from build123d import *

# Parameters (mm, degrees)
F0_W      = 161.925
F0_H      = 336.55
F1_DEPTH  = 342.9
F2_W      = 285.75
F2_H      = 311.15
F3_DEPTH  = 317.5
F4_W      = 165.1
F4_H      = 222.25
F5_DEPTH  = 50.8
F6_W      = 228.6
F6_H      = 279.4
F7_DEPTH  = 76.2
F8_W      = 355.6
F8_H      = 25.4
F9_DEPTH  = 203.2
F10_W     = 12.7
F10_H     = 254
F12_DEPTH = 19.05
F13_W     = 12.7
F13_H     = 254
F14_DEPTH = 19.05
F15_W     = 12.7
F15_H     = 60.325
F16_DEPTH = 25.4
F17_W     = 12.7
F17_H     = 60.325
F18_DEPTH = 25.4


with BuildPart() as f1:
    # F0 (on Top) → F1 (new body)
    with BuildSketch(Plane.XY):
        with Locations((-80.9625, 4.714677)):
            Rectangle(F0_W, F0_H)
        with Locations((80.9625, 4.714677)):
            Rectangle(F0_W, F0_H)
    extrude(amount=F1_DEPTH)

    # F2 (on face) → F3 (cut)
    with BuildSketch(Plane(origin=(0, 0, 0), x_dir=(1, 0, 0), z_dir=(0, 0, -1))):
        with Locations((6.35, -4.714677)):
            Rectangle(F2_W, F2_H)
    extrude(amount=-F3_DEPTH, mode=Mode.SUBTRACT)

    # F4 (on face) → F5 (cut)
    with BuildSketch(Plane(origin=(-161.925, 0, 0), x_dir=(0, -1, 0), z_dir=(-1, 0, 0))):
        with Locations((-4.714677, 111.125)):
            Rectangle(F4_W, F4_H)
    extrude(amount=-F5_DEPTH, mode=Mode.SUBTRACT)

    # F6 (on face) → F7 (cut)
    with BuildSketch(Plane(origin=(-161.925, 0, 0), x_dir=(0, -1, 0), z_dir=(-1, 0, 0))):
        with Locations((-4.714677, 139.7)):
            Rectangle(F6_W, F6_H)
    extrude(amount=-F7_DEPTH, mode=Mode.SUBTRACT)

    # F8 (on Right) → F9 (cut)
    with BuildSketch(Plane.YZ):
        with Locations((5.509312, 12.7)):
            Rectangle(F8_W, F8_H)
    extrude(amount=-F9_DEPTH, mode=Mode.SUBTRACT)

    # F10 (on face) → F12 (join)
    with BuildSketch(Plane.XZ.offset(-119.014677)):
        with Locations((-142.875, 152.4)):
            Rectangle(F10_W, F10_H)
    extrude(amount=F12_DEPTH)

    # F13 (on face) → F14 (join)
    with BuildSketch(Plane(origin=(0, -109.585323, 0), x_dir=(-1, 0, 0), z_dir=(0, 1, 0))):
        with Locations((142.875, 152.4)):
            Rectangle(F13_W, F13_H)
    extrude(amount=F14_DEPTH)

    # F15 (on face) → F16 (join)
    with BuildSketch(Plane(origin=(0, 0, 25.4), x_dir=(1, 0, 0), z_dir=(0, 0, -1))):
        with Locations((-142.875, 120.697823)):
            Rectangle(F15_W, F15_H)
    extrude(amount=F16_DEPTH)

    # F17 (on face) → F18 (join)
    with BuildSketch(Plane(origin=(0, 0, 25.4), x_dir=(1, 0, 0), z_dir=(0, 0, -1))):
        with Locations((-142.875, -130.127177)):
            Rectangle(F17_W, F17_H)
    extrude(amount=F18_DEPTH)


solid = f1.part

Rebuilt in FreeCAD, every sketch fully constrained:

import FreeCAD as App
import Part
import Sketcher

V = App.Vector
Q = App.Units.Quantity

doc = App.newDocument("Part")
body = doc.addObject("PartDesign::Body", "Body")

sketch1 = body.newObject("Sketcher::SketchObject", "Sketch")
sketch1.AttachmentSupport = (doc.getObject("XY_Plane"), [""])
sketch1.MapMode = "FlatFace"
sketch1.addGeometry(Part.LineSegment(V(-162, 173, 0), V(-162, -164, 0)), False)
sketch1.addGeometry(Part.LineSegment(V(-162, -164, 0), V(162, -164, 0)), False)
sketch1.addGeometry(Part.LineSegment(V(162, -164, 0), V(162, 173, 0)), False)
sketch1.addGeometry(Part.LineSegment(V(162, 173, 0), V(-162, 173, 0)), False)
sketch1.addConstraint(Sketcher.Constraint("Coincident", 0, 2, 1, 1))
sketch1.addConstraint(Sketcher.Constraint("Coincident", 1, 2, 2, 1))
sketch1.addConstraint(Sketcher.Constraint("Coincident", 2, 2, 3, 1))
sketch1.addConstraint(Sketcher.Constraint("Coincident", 3, 2, 0, 1))
sketch1.addConstraint(Sketcher.Constraint("Vertical", 0))
sketch1.addConstraint(Sketcher.Constraint("Horizontal", 1))
sketch1.addConstraint(Sketcher.Constraint("Vertical", 2))
sketch1.addConstraint(Sketcher.Constraint("Horizontal", 3))
sketch1.addConstraint(Sketcher.Constraint("DistanceX", 1, 1, 1, 2, Q("12.75 in")))
sketch1.addConstraint(Sketcher.Constraint("DistanceY", 0, 2, 0, 1, Q("13.25 in")))
sketch1.addConstraint(Sketcher.Constraint("DistanceX", 0, 2, -1, 1, Q("6.375 in")))
sketch1.addConstraint(Sketcher.Constraint("DistanceY", 0, 2, -1, 1, Q("163.560323 mm")))
pad1 = body.newObject("PartDesign::Pad", "Pad")
pad1.Profile = sketch1
pad1.Length = Q("13.5 in")

sketch2 = body.newObject("Sketcher::SketchObject", "Sketch001")
sketch2.AttachmentSupport = (doc.getObject("XY_Plane"), [""])
sketch2.MapMode = "FlatFace"
sketch2.addGeometry(Part.LineSegment(V(-137, -151, 0), V(-137, 160, 0)), False)
sketch2.addGeometry(Part.LineSegment(V(-137, 160, 0), V(149, 160, 0)), False)
sketch2.addGeometry(Part.LineSegment(V(149, 160, 0), V(149, -151, 0)), False)
sketch2.addGeometry(Part.LineSegment(V(149, -151, 0), V(-137, -151, 0)), False)
sketch2.addConstraint(Sketcher.Constraint("Coincident", 0, 2, 1, 1))
sketch2.addConstraint(Sketcher.Constraint("Coincident", 1, 2, 2, 1))
sketch2.addConstraint(Sketcher.Constraint("Coincident", 2, 2, 3, 1))
sketch2.addConstraint(Sketcher.Constraint("Coincident", 3, 2, 0, 1))
sketch2.addConstraint(Sketcher.Constraint("Vertical", 0))
sketch2.addConstraint(Sketcher.Constraint("Horizontal", 1))
sketch2.addConstraint(Sketcher.Constraint("Vertical", 2))
sketch2.addConstraint(Sketcher.Constraint("Horizontal", 3))
sketch2.addConstraint(Sketcher.Constraint("DistanceX", 1, 1, 1, 2, Q("11.25 in")))
sketch2.addConstraint(Sketcher.Constraint("DistanceY", 0, 1, 0, 2, Q("12.25 in")))
sketch2.addConstraint(Sketcher.Constraint("DistanceX", 0, 2, -1, 1, Q("5.375 in")))
sketch2.addConstraint(Sketcher.Constraint("DistanceY", -1, 1, 0, 2, Q("160.289677 mm")))
pocket1 = body.newObject("PartDesign::Pocket", "Pocket")
pocket1.Profile = sketch2
pocket1.Length = Q("12.5 in")
pocket1.Reversed = True

sketch3 = body.newObject("Sketcher::SketchObject", "Sketch002")
sketch3.AttachmentSupport = (doc.getObject("YZ_Plane"), [""])
sketch3.MapMode = "FlatFace"
sketch3.AttachmentOffset = App.Placement(V(0, 0, -6.375 * 25.4), App.Rotation())
sketch3.addGeometry(Part.LineSegment(V(87, 222, 0), V(87, 0, 0)), False)
sketch3.addGeometry(Part.LineSegment(V(87, 0, 0), V(-78, 0, 0)), False)
sketch3.addGeometry(Part.LineSegment(V(-78, 0, 0), V(-78, 222, 0)), False)
sketch3.addGeometry(Part.LineSegment(V(-78, 222, 0), V(87, 222, 0)), False)
sketch3.addConstraint(Sketcher.Constraint("Coincident", 0, 2, 1, 1))
sketch3.addConstraint(Sketcher.Constraint("Coincident", 1, 2, 2, 1))
sketch3.addConstraint(Sketcher.Constraint("Coincident", 2, 2, 3, 1))
sketch3.addConstraint(Sketcher.Constraint("Coincident", 3, 2, 0, 1))
sketch3.addConstraint(Sketcher.Constraint("Vertical", 0))
sketch3.addConstraint(Sketcher.Constraint("Horizontal", 1))
sketch3.addConstraint(Sketcher.Constraint("Vertical", 2))
sketch3.addConstraint(Sketcher.Constraint("Horizontal", 3))
sketch3.addConstraint(Sketcher.Constraint("PointOnObject", 0, 2, -1))
sketch3.addConstraint(Sketcher.Constraint("DistanceX", 1, 2, 1, 1, Q("6.5 in")))
sketch3.addConstraint(Sketcher.Constraint("DistanceY", 0, 2, 0, 1, Q("8.75 in")))
sketch3.addConstraint(Sketcher.Constraint("DistanceX", -1, 1, 0, 2, Q("87.264677 mm")))
pocket2 = body.newObject("PartDesign::Pocket", "Pocket001")
pocket2.Profile = sketch3
pocket2.Length = Q("2 in")
pocket2.Reversed = True

sketch4 = body.newObject("Sketcher::SketchObject", "Sketch003")
sketch4.AttachmentSupport = (doc.getObject("YZ_Plane"), [""])
sketch4.MapMode = "FlatFace"
sketch4.AttachmentOffset = App.Placement(V(0, 0, -6.375 * 25.4), App.Rotation())
sketch4.addGeometry(Part.LineSegment(V(119, 279, 0), V(119, 0, 0)), False)
sketch4.addGeometry(Part.LineSegment(V(119, 0, 0), V(-110, 0, 0)), False)
sketch4.addGeometry(Part.LineSegment(V(-110, 0, 0), V(-110, 279, 0)), False)
sketch4.addGeometry(Part.LineSegment(V(-110, 279, 0), V(119, 279, 0)), False)
sketch4.addConstraint(Sketcher.Constraint("Coincident", 0, 2, 1, 1))
sketch4.addConstraint(Sketcher.Constraint("Coincident", 1, 2, 2, 1))
sketch4.addConstraint(Sketcher.Constraint("Coincident", 2, 2, 3, 1))
sketch4.addConstraint(Sketcher.Constraint("Coincident", 3, 2, 0, 1))
sketch4.addConstraint(Sketcher.Constraint("Vertical", 0))
sketch4.addConstraint(Sketcher.Constraint("Horizontal", 1))
sketch4.addConstraint(Sketcher.Constraint("Vertical", 2))
sketch4.addConstraint(Sketcher.Constraint("Horizontal", 3))
sketch4.addConstraint(Sketcher.Constraint("PointOnObject", 0, 2, -1))
sketch4.addConstraint(Sketcher.Constraint("DistanceX", 1, 2, 1, 1, Q("9 in")))
sketch4.addConstraint(Sketcher.Constraint("DistanceY", 0, 2, 0, 1, Q("11 in")))
sketch4.addConstraint(Sketcher.Constraint("DistanceX", -1, 1, 0, 2, Q("119.014677 mm")))
pocket3 = body.newObject("PartDesign::Pocket", "Pocket002")
pocket3.Profile = sketch4
pocket3.Length = Q("3 in")
pocket3.Reversed = True

sketch5 = body.newObject("Sketcher::SketchObject", "Sketch004")
sketch5.AttachmentSupport = (doc.getObject("YZ_Plane"), [""])
sketch5.MapMode = "FlatFace"
sketch5.addGeometry(Part.LineSegment(V(-172, 25, 0), V(-172, 0, 0)), False)
sketch5.addGeometry(Part.LineSegment(V(-172, 0, 0), V(183, 0, 0)), False)
sketch5.addGeometry(Part.LineSegment(V(183, 0, 0), V(183, 25, 0)), False)
sketch5.addGeometry(Part.LineSegment(V(183, 25, 0), V(-172, 25, 0)), False)
sketch5.addConstraint(Sketcher.Constraint("Coincident", 0, 2, 1, 1))
sketch5.addConstraint(Sketcher.Constraint("Coincident", 1, 2, 2, 1))
sketch5.addConstraint(Sketcher.Constraint("Coincident", 2, 2, 3, 1))
sketch5.addConstraint(Sketcher.Constraint("Coincident", 3, 2, 0, 1))
sketch5.addConstraint(Sketcher.Constraint("Vertical", 0))
sketch5.addConstraint(Sketcher.Constraint("Horizontal", 1))
sketch5.addConstraint(Sketcher.Constraint("Vertical", 2))
sketch5.addConstraint(Sketcher.Constraint("Horizontal", 3))
sketch5.addConstraint(Sketcher.Constraint("PointOnObject", 0, 2, -1))
sketch5.addConstraint(Sketcher.Constraint("DistanceX", 1, 1, 1, 2, Q("14 in")))
sketch5.addConstraint(Sketcher.Constraint("DistanceY", 0, 2, 0, 1, Q("1 in")))
sketch5.addConstraint(Sketcher.Constraint("DistanceX", -1, 1, 1, 2, Q("183.309312 mm")))
pocket4 = body.newObject("PartDesign::Pocket", "Pocket003")
pocket4.Profile = sketch5
pocket4.Length = Q("8 in")

sketch6 = body.newObject("Sketcher::SketchObject", "Sketch005")
sketch6.AttachmentSupport = (doc.getObject("XZ_Plane"), [""])
sketch6.MapMode = "FlatFace"
sketch6.AttachmentOffset = App.Placement(V(0, 0, -119.014677), App.Rotation())
sketch6.addGeometry(Part.LineSegment(V(-149, 279, 0), V(-149, 25, 0)), False)
sketch6.addGeometry(Part.LineSegment(V(-149, 25, 0), V(-137, 25, 0)), False)
sketch6.addGeometry(Part.LineSegment(V(-137, 25, 0), V(-137, 279, 0)), False)
sketch6.addGeometry(Part.LineSegment(V(-137, 279, 0), V(-149, 279, 0)), False)
sketch6.addConstraint(Sketcher.Constraint("Coincident", 0, 2, 1, 1))
sketch6.addConstraint(Sketcher.Constraint("Coincident", 1, 2, 2, 1))
sketch6.addConstraint(Sketcher.Constraint("Coincident", 2, 2, 3, 1))
sketch6.addConstraint(Sketcher.Constraint("Coincident", 3, 2, 0, 1))
sketch6.addConstraint(Sketcher.Constraint("Vertical", 0))
sketch6.addConstraint(Sketcher.Constraint("Horizontal", 1))
sketch6.addConstraint(Sketcher.Constraint("Vertical", 2))
sketch6.addConstraint(Sketcher.Constraint("Horizontal", 3))
sketch6.addConstraint(Sketcher.Constraint("DistanceY", 0, 2, 0, 1, Q("10 in")))
sketch6.addConstraint(Sketcher.Constraint("DistanceX", 1, 1, 1, 2, Q("0.5 in")))
sketch6.addConstraint(Sketcher.Constraint("DistanceY", -1, 1, 0, 2, Q("1 in")))
sketch6.addConstraint(Sketcher.Constraint("DistanceX", 0, 2, -1, 1, Q("5.875 in")))
pad2 = body.newObject("PartDesign::Pad", "Pad001")
pad2.Profile = sketch6
pad2.Length = Q("0.75 in")

sketch7 = body.newObject("Sketcher::SketchObject", "Sketch006")
sketch7.AttachmentSupport = (doc.getObject("XZ_Plane"), [""])
sketch7.MapMode = "FlatFace"
sketch7.AttachmentOffset = App.Placement(V(0, 0, 109.585323), App.Rotation())
sketch7.addGeometry(Part.LineSegment(V(-137, 279, 0), V(-137, 25, 0)), False)
sketch7.addGeometry(Part.LineSegment(V(-137, 25, 0), V(-149, 25, 0)), False)
sketch7.addGeometry(Part.LineSegment(V(-149, 25, 0), V(-149, 279, 0)), False)
sketch7.addGeometry(Part.LineSegment(V(-149, 279, 0), V(-137, 279, 0)), False)
sketch7.addConstraint(Sketcher.Constraint("Coincident", 0, 2, 1, 1))
sketch7.addConstraint(Sketcher.Constraint("Coincident", 1, 2, 2, 1))
sketch7.addConstraint(Sketcher.Constraint("Coincident", 2, 2, 3, 1))
sketch7.addConstraint(Sketcher.Constraint("Coincident", 3, 2, 0, 1))
sketch7.addConstraint(Sketcher.Constraint("Vertical", 0))
sketch7.addConstraint(Sketcher.Constraint("Horizontal", 1))
sketch7.addConstraint(Sketcher.Constraint("Vertical", 2))
sketch7.addConstraint(Sketcher.Constraint("Horizontal", 3))
sketch7.addConstraint(Sketcher.Constraint("DistanceY", 0, 2, 0, 1, Q("10 in")))
sketch7.addConstraint(Sketcher.Constraint("DistanceX", 1, 2, 1, 1, Q("0.5 in")))
sketch7.addConstraint(Sketcher.Constraint("DistanceY", -1, 1, 0, 2, Q("1 in")))
sketch7.addConstraint(Sketcher.Constraint("DistanceX", 0, 2, -1, 1, Q("5.375 in")))
pad3 = body.newObject("PartDesign::Pad", "Pad002")
pad3.Profile = sketch7
pad3.Length = Q("0.75 in")
pad3.Reversed = True

sketch8 = body.newObject("Sketcher::SketchObject", "Sketch007")
sketch8.AttachmentSupport = (doc.getObject("XY_Plane"), [""])
sketch8.MapMode = "FlatFace"
sketch8.AttachmentOffset = App.Placement(V(0, 0, 1 * 25.4), App.Rotation())
sketch8.addGeometry(Part.LineSegment(V(-149, -151, 0), V(-149, -91, 0)), False)
sketch8.addGeometry(Part.LineSegment(V(-149, -91, 0), V(-137, -91, 0)), False)
sketch8.addGeometry(Part.LineSegment(V(-137, -91, 0), V(-137, -151, 0)), False)
sketch8.addGeometry(Part.LineSegment(V(-137, -151, 0), V(-149, -151, 0)), False)
sketch8.addConstraint(Sketcher.Constraint("Coincident", 0, 2, 1, 1))
sketch8.addConstraint(Sketcher.Constraint("Coincident", 1, 2, 2, 1))
sketch8.addConstraint(Sketcher.Constraint("Coincident", 2, 2, 3, 1))
sketch8.addConstraint(Sketcher.Constraint("Coincident", 3, 2, 0, 1))
sketch8.addConstraint(Sketcher.Constraint("Vertical", 0))
sketch8.addConstraint(Sketcher.Constraint("Horizontal", 1))
sketch8.addConstraint(Sketcher.Constraint("Vertical", 2))
sketch8.addConstraint(Sketcher.Constraint("Horizontal", 3))
sketch8.addConstraint(Sketcher.Constraint("DistanceX", 1, 1, 1, 2, Q("0.5 in")))
sketch8.addConstraint(Sketcher.Constraint("DistanceY", 0, 1, 0, 2, Q("2.375 in")))
sketch8.addConstraint(Sketcher.Constraint("DistanceX", 0, 2, -1, 1, Q("5.875 in")))
sketch8.addConstraint(Sketcher.Constraint("DistanceY", 0, 2, -1, 1, Q("90.535323 mm")))
pad4 = body.newObject("PartDesign::Pad", "Pad003")
pad4.Profile = sketch8
pad4.Length = Q("1 in")
pad4.Reversed = True

sketch9 = body.newObject("Sketcher::SketchObject", "Sketch008")
sketch9.AttachmentSupport = (doc.getObject("XY_Plane"), [""])
sketch9.MapMode = "FlatFace"
sketch9.AttachmentOffset = App.Placement(V(0, 0, 1 * 25.4), App.Rotation())
sketch9.addGeometry(Part.LineSegment(V(-149, 100, 0), V(-149, 160, 0)), False)
sketch9.addGeometry(Part.LineSegment(V(-149, 160, 0), V(-137, 160, 0)), False)
sketch9.addGeometry(Part.LineSegment(V(-137, 160, 0), V(-137, 100, 0)), False)
sketch9.addGeometry(Part.LineSegment(V(-137, 100, 0), V(-149, 100, 0)), False)
sketch9.addConstraint(Sketcher.Constraint("Coincident", 0, 2, 1, 1))
sketch9.addConstraint(Sketcher.Constraint("Coincident", 1, 2, 2, 1))
sketch9.addConstraint(Sketcher.Constraint("Coincident", 2, 2, 3, 1))
sketch9.addConstraint(Sketcher.Constraint("Coincident", 3, 2, 0, 1))
sketch9.addConstraint(Sketcher.Constraint("Vertical", 0))
sketch9.addConstraint(Sketcher.Constraint("Horizontal", 1))
sketch9.addConstraint(Sketcher.Constraint("Vertical", 2))
sketch9.addConstraint(Sketcher.Constraint("Horizontal", 3))
sketch9.addConstraint(Sketcher.Constraint("DistanceX", 1, 1, 1, 2, Q("0.5 in")))
sketch9.addConstraint(Sketcher.Constraint("DistanceY", 0, 1, 0, 2, Q("2.375 in")))
sketch9.addConstraint(Sketcher.Constraint("DistanceX", 0, 2, -1, 1, Q("5.875 in")))
sketch9.addConstraint(Sketcher.Constraint("DistanceY", -1, 1, 0, 2, Q("160.289677 mm")))
pad5 = body.newObject("PartDesign::Pad", "Pad004")
pad5.Profile = sketch9
pad5.Length = Q("1 in")
pad5.Reversed = True

doc.recompute()
